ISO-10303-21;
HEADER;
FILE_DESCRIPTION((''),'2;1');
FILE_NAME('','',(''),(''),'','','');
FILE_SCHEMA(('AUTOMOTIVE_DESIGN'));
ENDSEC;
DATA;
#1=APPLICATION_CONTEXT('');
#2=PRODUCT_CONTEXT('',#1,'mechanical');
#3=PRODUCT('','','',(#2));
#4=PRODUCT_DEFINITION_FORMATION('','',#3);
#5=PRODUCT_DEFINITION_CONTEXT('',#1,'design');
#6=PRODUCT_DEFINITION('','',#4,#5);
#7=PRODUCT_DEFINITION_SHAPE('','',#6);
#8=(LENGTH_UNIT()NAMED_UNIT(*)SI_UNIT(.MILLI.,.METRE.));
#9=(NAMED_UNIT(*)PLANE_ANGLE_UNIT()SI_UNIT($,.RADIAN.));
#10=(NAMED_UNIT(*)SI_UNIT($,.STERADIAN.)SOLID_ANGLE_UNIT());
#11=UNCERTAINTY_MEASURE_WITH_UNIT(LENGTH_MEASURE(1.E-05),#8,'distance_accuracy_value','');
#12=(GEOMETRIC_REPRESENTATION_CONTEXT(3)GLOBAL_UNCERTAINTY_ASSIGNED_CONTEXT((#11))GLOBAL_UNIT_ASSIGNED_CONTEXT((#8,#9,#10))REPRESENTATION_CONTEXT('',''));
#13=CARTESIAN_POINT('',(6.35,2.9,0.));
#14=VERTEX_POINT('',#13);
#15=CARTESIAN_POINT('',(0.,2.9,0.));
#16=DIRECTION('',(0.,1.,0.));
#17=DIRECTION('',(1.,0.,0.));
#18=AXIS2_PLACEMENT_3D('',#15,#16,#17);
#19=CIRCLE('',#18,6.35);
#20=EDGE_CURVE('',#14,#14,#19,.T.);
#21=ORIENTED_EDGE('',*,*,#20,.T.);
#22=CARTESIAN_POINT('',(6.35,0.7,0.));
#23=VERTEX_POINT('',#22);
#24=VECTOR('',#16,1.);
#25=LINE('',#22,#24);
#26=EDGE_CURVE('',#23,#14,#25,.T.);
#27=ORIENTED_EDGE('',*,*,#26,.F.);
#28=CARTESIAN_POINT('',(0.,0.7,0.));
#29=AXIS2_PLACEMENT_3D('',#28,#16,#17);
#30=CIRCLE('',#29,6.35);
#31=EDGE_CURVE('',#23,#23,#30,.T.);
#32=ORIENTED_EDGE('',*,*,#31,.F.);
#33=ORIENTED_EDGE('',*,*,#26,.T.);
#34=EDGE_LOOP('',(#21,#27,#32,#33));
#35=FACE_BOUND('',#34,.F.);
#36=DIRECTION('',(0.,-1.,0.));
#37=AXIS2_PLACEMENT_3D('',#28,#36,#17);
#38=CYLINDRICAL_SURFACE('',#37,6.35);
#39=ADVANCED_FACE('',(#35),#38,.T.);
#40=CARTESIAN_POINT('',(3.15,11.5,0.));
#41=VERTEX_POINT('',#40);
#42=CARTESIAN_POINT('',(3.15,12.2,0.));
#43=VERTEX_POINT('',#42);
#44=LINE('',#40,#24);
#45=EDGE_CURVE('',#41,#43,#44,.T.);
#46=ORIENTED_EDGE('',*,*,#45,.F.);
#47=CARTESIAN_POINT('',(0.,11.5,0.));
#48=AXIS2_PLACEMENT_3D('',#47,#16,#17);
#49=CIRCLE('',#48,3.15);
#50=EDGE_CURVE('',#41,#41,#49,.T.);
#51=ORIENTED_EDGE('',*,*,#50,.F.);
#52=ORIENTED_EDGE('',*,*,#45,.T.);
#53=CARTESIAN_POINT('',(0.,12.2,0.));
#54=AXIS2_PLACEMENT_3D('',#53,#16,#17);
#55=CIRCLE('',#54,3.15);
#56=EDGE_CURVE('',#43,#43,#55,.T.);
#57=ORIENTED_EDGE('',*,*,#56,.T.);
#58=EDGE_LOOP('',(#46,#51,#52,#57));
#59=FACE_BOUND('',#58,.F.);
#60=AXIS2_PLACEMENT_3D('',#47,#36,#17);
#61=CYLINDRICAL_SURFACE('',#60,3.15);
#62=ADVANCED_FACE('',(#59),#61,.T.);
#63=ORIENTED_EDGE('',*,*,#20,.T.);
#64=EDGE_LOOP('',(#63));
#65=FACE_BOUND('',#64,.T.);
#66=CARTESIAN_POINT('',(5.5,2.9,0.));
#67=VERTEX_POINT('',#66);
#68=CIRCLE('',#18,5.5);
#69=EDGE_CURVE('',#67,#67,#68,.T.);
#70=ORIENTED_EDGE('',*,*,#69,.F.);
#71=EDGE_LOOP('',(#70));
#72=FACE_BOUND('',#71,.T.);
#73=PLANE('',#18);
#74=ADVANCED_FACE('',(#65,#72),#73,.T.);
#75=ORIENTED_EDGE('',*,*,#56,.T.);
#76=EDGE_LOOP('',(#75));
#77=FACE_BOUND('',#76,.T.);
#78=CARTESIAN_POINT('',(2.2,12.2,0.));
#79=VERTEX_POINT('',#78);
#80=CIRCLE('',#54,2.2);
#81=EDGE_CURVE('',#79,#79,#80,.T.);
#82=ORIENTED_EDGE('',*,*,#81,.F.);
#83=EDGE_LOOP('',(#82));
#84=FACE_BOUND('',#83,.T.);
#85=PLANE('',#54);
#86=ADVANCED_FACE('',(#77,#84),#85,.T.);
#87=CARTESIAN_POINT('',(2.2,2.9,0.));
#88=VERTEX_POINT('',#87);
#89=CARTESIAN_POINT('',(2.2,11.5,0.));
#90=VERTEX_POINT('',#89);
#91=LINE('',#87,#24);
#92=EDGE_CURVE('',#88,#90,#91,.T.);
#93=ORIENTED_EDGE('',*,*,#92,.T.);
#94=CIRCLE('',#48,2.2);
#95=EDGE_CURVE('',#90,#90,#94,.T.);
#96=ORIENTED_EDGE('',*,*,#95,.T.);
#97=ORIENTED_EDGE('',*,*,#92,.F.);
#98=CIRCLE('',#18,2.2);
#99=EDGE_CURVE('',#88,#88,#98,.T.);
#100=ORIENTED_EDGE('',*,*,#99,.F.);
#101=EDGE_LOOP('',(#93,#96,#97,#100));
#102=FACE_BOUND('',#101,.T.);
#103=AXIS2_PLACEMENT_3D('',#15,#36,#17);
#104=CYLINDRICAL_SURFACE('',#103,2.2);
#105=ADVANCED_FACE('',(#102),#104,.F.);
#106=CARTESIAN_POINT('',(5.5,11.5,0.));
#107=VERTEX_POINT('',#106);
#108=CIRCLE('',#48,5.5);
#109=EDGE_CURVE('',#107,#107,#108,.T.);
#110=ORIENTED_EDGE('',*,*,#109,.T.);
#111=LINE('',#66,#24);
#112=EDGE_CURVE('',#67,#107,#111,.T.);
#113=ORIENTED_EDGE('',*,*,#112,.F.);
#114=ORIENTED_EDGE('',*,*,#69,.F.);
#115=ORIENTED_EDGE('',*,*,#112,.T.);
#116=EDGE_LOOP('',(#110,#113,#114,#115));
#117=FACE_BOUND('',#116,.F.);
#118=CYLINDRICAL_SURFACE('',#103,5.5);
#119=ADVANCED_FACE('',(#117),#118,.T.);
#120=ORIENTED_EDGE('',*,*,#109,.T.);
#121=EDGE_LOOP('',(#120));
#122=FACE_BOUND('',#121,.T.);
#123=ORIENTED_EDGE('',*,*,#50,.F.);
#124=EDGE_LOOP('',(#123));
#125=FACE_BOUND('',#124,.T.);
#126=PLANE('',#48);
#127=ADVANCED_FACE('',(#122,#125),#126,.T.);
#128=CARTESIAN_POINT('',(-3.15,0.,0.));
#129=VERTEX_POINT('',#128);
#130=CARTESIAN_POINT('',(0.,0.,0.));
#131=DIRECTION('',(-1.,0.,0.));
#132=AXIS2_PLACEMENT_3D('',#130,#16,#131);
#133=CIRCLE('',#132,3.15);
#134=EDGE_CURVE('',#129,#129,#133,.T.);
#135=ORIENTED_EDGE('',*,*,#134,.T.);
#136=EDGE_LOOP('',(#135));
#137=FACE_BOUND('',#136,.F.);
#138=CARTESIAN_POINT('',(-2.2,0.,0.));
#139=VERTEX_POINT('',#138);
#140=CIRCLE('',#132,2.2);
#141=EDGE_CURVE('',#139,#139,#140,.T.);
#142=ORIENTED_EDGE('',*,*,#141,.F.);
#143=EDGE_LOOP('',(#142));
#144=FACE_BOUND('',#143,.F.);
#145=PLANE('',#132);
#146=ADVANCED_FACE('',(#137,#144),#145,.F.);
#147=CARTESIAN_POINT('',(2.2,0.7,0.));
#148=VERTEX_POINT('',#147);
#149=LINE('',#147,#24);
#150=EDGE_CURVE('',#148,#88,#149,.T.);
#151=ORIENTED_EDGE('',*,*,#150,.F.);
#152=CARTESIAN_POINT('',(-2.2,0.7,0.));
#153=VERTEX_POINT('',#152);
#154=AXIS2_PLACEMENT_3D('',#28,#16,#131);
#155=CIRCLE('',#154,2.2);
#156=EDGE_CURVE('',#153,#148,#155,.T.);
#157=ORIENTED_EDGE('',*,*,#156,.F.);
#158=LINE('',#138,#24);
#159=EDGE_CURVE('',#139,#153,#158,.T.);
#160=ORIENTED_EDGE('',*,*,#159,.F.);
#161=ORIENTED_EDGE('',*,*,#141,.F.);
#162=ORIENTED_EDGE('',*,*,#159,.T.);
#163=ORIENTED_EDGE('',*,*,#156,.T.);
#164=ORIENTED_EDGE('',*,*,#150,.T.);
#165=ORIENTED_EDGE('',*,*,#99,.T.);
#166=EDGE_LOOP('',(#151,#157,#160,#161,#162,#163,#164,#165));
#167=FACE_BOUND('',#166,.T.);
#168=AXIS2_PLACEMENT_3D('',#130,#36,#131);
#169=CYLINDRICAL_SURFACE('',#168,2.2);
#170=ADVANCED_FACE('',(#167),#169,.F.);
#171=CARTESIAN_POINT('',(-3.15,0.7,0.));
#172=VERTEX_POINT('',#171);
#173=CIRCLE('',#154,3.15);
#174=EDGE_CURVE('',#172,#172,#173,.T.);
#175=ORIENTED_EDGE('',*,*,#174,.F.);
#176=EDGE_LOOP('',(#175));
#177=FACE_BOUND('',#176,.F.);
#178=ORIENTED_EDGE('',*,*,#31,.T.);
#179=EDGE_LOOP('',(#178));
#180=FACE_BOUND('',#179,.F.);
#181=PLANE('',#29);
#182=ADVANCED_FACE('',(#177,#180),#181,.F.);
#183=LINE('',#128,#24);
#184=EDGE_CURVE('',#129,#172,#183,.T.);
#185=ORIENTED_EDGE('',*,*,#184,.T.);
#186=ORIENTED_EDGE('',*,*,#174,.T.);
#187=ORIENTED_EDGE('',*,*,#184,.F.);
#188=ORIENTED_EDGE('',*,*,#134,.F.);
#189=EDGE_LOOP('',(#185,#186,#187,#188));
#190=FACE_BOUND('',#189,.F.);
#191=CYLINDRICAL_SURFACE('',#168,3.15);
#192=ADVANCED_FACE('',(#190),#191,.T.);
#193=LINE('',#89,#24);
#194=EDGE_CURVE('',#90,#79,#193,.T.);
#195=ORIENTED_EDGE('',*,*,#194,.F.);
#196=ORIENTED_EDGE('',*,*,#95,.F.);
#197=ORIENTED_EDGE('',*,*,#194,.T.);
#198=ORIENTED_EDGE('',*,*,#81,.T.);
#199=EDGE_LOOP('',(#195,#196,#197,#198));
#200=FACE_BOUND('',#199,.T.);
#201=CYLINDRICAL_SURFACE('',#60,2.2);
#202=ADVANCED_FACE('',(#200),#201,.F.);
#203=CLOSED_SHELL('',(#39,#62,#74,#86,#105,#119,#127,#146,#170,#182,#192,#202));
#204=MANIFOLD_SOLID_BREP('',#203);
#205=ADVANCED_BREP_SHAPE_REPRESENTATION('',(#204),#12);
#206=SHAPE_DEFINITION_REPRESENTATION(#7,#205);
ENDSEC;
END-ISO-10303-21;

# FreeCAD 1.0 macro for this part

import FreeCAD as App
import Part
import Sketcher

V = App.Vector

doc = App.newDocument("Part")
body = doc.addObject("PartDesign::Body", "Body")

# Sketch on XZ plane
sketch1 = body.newObject("Sketcher::SketchObject", "Sketch")
sketch1.AttachmentSupport = (doc.getObject("XZ_Plane"), [""])
sketch1.MapMode = "FlatFace"
sketch1.addGeometry(Part.Circle(V(0, 0, 0), V(0, 0, 1), 3.1), False)
sketch1.addGeometry(Part.Circle(V(0, 0, 0), V(0, 0, 1), 2.2), False)
sketch1.addConstraint(Sketcher.Constraint("Coincident", 0, 3, -1, 1))
sketch1.addConstraint(Sketcher.Constraint("Coincident", 1, 3, -1, 1))
sketch1.addConstraint(Sketcher.Constraint("Diameter", 0, 6.3))
sketch1.addConstraint(Sketcher.Constraint("Diameter", 1, 4.4))
pad1 = body.newObject("PartDesign::Pad", "Pad")
pad1.Profile = sketch1
pad1.Length = 0.7
pad1.Reversed = True

# Sketch on XZ plane
sketch2 = body.newObject("Sketcher::SketchObject", "Sketch001")
sketch2.AttachmentSupport = (doc.getObject("XZ_Plane"), [""])
sketch2.MapMode = "FlatFace"
sketch2.AttachmentOffset = App.Placement(V(0, 0, -0.7), App.Rotation())
sketch2.addGeometry(Part.Circle(V(0, 0, 0), V(0, 0, 1), 6.3), False)
sketch2.addGeometry(Part.Circle(V(0, 0, 0), V(0, 0, 1), 2.2), False)
sketch2.addConstraint(Sketcher.Constraint("Coincident", 0, 3, -1, 1))
sketch2.addConstraint(Sketcher.Constraint("Coincident", 1, 3, -1, 1))
sketch2.addConstraint(Sketcher.Constraint("Diameter", 0, 12.7))
sketch2.addConstraint(Sketcher.Constraint("Diameter", 1, 4.4))
pad2 = body.newObject("PartDesign::Pad", "Pad001")
pad2.Profile = sketch2
pad2.Length = 2.2
pad2.Reversed = True

# Sketch on XZ plane
sketch3 = body.newObject("Sketcher::SketchObject", "Sketch002")
sketch3.AttachmentSupport = (doc.getObject("XZ_Plane"), [""])
sketch3.MapMode = "FlatFace"
sketch3.AttachmentOffset = App.Placement(V(0, 0, -2.9), App.Rotation())
sketch3.addGeometry(Part.Circle(V(0, 0, 0), V(0, 0, 1), 5.5), False)
sketch3.addGeometry(Part.Circle(V(0, 0, 0), V(0, 0, 1), 2.2), False)
sketch3.addConstraint(Sketcher.Constraint("Coincident", 0, 3, -1, 1))
sketch3.addConstraint(Sketcher.Constraint("Coincident", 1, 3, -1, 1))
sketch3.addConstraint(Sketcher.Constraint("Diameter", 0, 11.0))
sketch3.addConstraint(Sketcher.Constraint("Diameter", 1, 4.4))
pad3 = body.newObject("PartDesign::Pad", "Pad002")
pad3.Profile = sketch3
pad3.Length = 8.6
pad3.Reversed = True

# Sketch on XZ plane
sketch4 = body.newObject("Sketcher::SketchObject", "Sketch003")
sketch4.AttachmentSupport = (doc.getObject("XZ_Plane"), [""])
sketch4.MapMode = "FlatFace"
sketch4.AttachmentOffset = App.Placement(V(0, 0, -11.5), App.Rotation())
sketch4.addGeometry(Part.Circle(V(0, 0, 0), V(0, 0, 1), 3.1), False)
sketch4.addGeometry(Part.Circle(V(0, 0, 0), V(0, 0, 1), 2.2), False)
sketch4.addConstraint(Sketcher.Constraint("Coincident", 0, 3, -1, 1))
sketch4.addConstraint(Sketcher.Constraint("Coincident", 1, 3, -1, 1))
sketch4.addConstraint(Sketcher.Constraint("Diameter", 0, 6.3))
sketch4.addConstraint(Sketcher.Constraint("Diameter", 1, 4.4))
pad4 = body.newObject("PartDesign::Pad", "Pad003")
pad4.Profile = sketch4
pad4.Length = 0.7
pad4.Reversed = True

doc.recompute()
